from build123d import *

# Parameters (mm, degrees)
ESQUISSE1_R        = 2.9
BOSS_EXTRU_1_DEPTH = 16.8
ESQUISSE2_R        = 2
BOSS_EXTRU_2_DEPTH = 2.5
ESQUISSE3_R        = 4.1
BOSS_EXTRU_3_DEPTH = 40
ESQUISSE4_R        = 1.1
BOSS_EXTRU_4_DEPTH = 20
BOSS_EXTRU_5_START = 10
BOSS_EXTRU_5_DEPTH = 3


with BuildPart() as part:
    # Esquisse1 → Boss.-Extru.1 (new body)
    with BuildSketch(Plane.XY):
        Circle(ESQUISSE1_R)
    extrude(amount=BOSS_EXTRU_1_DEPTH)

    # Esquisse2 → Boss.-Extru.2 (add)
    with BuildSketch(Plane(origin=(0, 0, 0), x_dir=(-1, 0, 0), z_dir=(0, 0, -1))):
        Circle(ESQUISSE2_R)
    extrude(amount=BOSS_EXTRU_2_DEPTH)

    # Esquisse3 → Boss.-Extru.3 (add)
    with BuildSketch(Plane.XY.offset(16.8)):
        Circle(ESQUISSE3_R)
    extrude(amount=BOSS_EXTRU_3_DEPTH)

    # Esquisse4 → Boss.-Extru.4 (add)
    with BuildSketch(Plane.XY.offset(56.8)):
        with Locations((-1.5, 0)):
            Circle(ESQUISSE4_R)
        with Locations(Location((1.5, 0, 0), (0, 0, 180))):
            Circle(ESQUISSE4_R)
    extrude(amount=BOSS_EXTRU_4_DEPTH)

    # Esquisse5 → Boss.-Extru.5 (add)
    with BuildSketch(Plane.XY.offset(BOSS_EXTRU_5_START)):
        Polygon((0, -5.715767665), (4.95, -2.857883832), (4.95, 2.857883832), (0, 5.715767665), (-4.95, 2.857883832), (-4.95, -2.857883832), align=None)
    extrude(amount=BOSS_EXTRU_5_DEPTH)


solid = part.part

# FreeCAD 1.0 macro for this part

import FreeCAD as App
import Part
import Sketcher

V = App.Vector
Q = App.Units.Quantity


def add_polygon(sketch, points):
    """Adds a closed chain of lines whose ends are joined by coincident constraints."""
    first, n = sketch.GeometryCount, len(points)
    for a, b in zip(points, points[1:] + points[:1]):
        sketch.addGeometry(Part.LineSegment(App.Vector(*a, 0), App.Vector(*b, 0)), False)
    for i in range(n):
        sketch.addConstraint(Sketcher.Constraint("Coincident", first + i, 2, first + (i + 1) % n, 1))

doc = App.newDocument("Part")
body = doc.addObject("PartDesign::Body", "Body")

# Sketch on XY plane
sketch1 = body.newObject("Sketcher::SketchObject", "Sketch")
sketch1.AttachmentSupport = (doc.getObject("XY_Plane"), [""])
sketch1.MapMode = "FlatFace"
sketch1.addGeometry(Part.Circle(V(0, 0, 0), V(0, 0, 1), 2.9), False)
sketch1.addConstraint([
    Sketcher.Constraint("Coincident", 0, 3, -1, 1),
    Sketcher.Constraint("Diameter", 0, 5.8),
])
pad1 = body.newObject("PartDesign::Pad", "Pad")
pad1.Profile = sketch1
pad1.Length = 16.8

# Sketch on XY plane
sketch2 = body.newObject("Sketcher::SketchObject", "Sketch001")
sketch2.AttachmentSupport = (doc.getObject("XY_Plane"), [""])
sketch2.MapMode = "FlatFace"
sketch2.addGeometry(Part.Circle(V(0, 0, 0), V(0, 0, 1), 2), False)
sketch2.addConstraint([
    Sketcher.Constraint("Coincident", 0, 3, -1, 1),
    Sketcher.Constraint("Diameter", 0, 4.0),
])
pad2 = body.newObject("PartDesign::Pad", "Pad001")
pad2.Profile = sketch2
pad2.Length = 2.5
pad2.Reversed = True

# Sketch on XY plane
sketch3 = body.newObject("Sketcher::SketchObject", "Sketch002")
sketch3.AttachmentSupport = (doc.getObject("XY_Plane"), [""])
sketch3.MapMode = "FlatFace"
sketch3.AttachmentOffset = App.Placement(V(0, 0, 16.8), App.Rotation())
sketch3.addGeometry(Part.Circle(V(0, 0, 0), V(0, 0, 1), 4.1), False)
sketch3.addConstraint([
    Sketcher.Constraint("Coincident", 0, 3, -1, 1),
    Sketcher.Constraint("Diameter", 0, 8.2),
])
pad3 = body.newObject("PartDesign::Pad", "Pad002")
pad3.Profile = sketch3
pad3.Length = 40

# Sketch on XY plane
sketch4 = body.newObject("Sketcher::SketchObject", "Sketch003")
sketch4.AttachmentSupport = (doc.getObject("XY_Plane"), [""])
sketch4.MapMode = "FlatFace"
sketch4.AttachmentOffset = App.Placement(V(0, 0, 56.8), App.Rotation())
sketch4.addGeometry([
    Part.Circle(V(-1.5, 0, 0), V(0, 0, 1), 1.1),
    Part.Circle(V(1.5, 0, 0), V(0, 0, 1), 1.1),
], False)
sketch4.addConstraint([
    Sketcher.Constraint("Equal", 0, 1),
    Sketcher.Constraint("Symmetric", 0, 3, 1, 3, -1, 1),
    Sketcher.Constraint("PointOnObject", 0, 3, -1),
    Sketcher.Constraint("Diameter", 0, 2.2),
    Sketcher.Constraint("DistanceX", 0, 3, 1, 3, 3.0),
])
pad4 = body.newObject("PartDesign::Pad", "Pad003")
pad4.Profile = sketch4
pad4.Length = 20

# Sketch on XY plane
sketch5 = body.newObject("Sketcher::SketchObject", "Sketch004")
sketch5.AttachmentSupport = (doc.getObject("XY_Plane"), [""])
sketch5.MapMode = "FlatFace"
sketch5.AttachmentOffset = App.Placement(V(0, 0, 10), App.Rotation())
add_polygon(sketch5, [(0, -6), (5, -3), (5, 3), (0, 6), (-5, 3), (-5, -3)])  # lines 0-5
sketch5.addConstraint([
    Sketcher.Constraint("Vertical", 1),
    Sketcher.Constraint("Vertical", 4),
    Sketcher.Constraint("Symmetric", 0, 2, 3, 2, -1, 1),
    Sketcher.Constraint("Symmetric", 2, 2, 5, 2, -1, 1),
    Sketcher.Constraint("PointOnObject", 2, 2, -2),
    Sketcher.Constraint("Parallel", 2, 5),
    Sketcher.Constraint("Horizontal", 1, 2, 3, 2),
    Sketcher.Constraint("Angle", 0, Q("30 deg")),
    Sketcher.Constraint("DistanceX", 3, 2, 1, 2, 9.9),
    Sketcher.Constraint("DistanceY", 1, 1, 1, 2, 5.715768),
])
pad5 = body.newObject("PartDesign::Pad", "Pad004")
pad5.Profile = sketch5
pad5.Length = 3

doc.recompute()
